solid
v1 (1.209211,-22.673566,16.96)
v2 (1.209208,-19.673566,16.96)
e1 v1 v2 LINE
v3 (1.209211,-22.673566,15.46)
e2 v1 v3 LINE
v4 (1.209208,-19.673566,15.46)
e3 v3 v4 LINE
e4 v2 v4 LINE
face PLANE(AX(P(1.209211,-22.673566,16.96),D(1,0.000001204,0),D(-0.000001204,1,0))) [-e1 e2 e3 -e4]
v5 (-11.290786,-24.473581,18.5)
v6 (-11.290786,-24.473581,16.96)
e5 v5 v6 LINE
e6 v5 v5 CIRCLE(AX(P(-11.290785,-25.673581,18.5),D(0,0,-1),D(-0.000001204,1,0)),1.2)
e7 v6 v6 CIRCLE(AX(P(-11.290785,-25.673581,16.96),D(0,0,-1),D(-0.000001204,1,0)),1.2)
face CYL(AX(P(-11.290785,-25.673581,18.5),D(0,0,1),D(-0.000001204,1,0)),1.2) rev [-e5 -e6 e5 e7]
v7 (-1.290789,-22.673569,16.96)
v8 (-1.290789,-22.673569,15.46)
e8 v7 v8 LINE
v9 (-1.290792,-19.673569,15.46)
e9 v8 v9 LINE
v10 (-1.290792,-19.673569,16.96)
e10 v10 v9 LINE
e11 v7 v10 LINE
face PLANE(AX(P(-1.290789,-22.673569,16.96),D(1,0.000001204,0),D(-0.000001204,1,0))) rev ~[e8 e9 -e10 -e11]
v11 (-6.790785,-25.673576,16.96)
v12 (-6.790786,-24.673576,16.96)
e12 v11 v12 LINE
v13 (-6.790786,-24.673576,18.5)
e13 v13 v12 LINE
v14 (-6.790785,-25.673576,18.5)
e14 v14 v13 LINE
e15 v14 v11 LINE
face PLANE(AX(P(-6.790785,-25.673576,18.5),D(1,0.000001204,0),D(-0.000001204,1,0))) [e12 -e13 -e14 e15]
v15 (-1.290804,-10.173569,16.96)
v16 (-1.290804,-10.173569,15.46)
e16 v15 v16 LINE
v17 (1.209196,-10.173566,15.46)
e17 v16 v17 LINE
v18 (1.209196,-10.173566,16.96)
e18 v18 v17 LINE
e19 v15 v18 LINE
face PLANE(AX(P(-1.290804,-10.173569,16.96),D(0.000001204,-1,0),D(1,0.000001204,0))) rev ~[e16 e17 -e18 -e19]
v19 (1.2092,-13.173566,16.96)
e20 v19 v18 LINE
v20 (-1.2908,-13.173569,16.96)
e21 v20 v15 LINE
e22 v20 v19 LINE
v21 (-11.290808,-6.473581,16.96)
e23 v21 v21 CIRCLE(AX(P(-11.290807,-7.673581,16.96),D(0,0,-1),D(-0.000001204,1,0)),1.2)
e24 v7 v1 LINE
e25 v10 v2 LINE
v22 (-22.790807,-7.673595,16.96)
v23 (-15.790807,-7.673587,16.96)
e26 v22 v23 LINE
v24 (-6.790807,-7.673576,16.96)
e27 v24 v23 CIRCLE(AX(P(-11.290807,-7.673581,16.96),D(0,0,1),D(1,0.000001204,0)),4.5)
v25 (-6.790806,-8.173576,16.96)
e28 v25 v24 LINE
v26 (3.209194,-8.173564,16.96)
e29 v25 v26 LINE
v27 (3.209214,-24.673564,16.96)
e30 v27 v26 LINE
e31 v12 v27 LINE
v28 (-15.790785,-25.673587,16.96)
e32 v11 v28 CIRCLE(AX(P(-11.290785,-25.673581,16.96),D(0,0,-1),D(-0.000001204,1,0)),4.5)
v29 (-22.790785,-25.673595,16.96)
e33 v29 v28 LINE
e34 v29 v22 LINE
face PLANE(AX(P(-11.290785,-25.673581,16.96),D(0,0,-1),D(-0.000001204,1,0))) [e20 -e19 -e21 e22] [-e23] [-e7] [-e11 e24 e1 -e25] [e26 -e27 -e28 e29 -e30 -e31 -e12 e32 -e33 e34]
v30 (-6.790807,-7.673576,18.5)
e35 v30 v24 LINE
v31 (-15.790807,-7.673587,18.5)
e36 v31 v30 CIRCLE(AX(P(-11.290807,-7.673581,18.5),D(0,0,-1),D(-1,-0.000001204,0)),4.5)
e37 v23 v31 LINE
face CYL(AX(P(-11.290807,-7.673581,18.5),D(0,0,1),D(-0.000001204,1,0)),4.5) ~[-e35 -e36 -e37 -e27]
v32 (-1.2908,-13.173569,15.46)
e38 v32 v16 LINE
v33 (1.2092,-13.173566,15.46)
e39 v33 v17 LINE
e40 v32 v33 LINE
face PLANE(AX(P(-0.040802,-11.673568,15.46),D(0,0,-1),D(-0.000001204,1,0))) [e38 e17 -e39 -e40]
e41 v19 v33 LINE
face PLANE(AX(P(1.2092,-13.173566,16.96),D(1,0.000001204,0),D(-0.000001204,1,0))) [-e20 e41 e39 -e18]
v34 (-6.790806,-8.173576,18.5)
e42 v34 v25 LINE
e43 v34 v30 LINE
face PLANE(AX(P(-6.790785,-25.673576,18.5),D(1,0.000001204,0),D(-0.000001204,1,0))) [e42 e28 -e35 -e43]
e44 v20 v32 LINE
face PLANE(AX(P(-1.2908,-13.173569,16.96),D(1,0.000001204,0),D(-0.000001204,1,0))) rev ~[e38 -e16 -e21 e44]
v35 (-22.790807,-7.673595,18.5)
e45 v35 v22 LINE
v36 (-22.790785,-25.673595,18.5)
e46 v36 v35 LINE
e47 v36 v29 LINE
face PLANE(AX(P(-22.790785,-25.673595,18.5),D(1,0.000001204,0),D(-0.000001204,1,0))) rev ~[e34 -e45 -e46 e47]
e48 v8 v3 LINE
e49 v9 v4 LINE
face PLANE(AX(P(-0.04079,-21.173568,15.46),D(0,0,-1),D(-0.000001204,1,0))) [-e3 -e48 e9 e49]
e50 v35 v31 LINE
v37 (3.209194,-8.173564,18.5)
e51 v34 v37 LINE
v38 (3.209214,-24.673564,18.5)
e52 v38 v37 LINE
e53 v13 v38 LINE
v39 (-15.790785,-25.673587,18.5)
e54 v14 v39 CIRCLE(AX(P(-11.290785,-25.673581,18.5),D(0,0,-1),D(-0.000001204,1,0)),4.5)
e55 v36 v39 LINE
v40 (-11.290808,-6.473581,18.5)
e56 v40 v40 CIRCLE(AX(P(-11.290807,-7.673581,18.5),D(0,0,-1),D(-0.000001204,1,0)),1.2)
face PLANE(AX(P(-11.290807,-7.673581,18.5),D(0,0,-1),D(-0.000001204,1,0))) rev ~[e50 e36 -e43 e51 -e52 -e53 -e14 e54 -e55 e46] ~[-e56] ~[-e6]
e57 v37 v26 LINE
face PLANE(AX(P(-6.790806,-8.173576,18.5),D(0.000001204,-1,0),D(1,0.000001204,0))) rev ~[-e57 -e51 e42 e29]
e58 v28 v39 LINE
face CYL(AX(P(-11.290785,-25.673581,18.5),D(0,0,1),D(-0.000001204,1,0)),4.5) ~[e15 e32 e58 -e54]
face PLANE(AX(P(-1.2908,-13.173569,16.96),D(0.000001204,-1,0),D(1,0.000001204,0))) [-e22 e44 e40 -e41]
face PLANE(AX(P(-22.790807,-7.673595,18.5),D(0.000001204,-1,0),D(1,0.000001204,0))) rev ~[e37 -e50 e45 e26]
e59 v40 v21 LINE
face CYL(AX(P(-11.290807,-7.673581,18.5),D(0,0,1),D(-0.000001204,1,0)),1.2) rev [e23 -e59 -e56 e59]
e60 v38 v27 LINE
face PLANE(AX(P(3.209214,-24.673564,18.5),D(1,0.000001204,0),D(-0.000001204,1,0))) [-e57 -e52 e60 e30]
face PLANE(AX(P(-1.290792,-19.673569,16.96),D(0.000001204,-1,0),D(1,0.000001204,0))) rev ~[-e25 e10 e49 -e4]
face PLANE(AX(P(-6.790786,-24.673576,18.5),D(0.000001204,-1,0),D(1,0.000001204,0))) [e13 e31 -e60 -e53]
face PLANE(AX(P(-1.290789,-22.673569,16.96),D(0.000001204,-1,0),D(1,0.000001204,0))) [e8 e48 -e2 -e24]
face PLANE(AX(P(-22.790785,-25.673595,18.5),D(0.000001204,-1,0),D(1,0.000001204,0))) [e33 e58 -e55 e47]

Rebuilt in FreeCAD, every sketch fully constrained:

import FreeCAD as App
import Part
import Sketcher
from FreeCAD import Vector
Q = App.Units.Quantity

doc = App.newDocument("Part")
body = doc.addObject("PartDesign::Body", "Body")

# Sketch on XY plane
sketch1 = doc.addObject("Sketcher::SketchObject", "Sketch")
body.addObject(sketch1)
sketch1.AttachmentSupport = (doc.XY_Plane, [""])
sketch1.MapMode = "FlatFace"
sketch1.AttachmentOffset = App.Placement(Vector(0, 0, 1.54), App.Rotation())
sketch1.addGeometry(Part.LineSegment(Vector(12.5, 24, 0), Vector(12.5, 21.5, 0)), False)
sketch1.addGeometry(Part.LineSegment(Vector(12.5, 21.5, 0), Vector(15.5, 21.5, 0)), False)
sketch1.addGeometry(Part.LineSegment(Vector(15.5, 21.5, 0), Vector(15.5, 24, 0)), False)
sketch1.addGeometry(Part.LineSegment(Vector(15.5, 24, 0), Vector(12.5, 24, 0)), False)
sketch1.addConstraint(Sketcher.Constraint("Coincident", 0, 2, 1, 1))
sketch1.addConstraint(Sketcher.Constraint("Coincident", 1, 2, 2, 1))
sketch1.addConstraint(Sketcher.Constraint("Coincident", 2, 2, 3, 1))
sketch1.addConstraint(Sketcher.Constraint("Coincident", 3, 2, 0, 1))
sketch1.addConstraint(Sketcher.Constraint("Vertical", 0))
sketch1.addConstraint(Sketcher.Constraint("Horizontal", 1))
sketch1.addConstraint(Sketcher.Constraint("Vertical", 2))
sketch1.addConstraint(Sketcher.Constraint("Horizontal", 3))
sketch1.addConstraint(Sketcher.Constraint("DistanceX", 1, 1, 1, 2, Q("3 mm")))
sketch1.addConstraint(Sketcher.Constraint("DistanceY", 0, 2, 0, 1, Q("2.5 mm")))
sketch1.addConstraint(Sketcher.Constraint("DistanceY", -1, 1, 2, 2, Q("24 mm")))
sketch1.addConstraint(Sketcher.Constraint("DistanceX", -1, 1, 0, 2, Q("12.5 mm")))
pad1 = doc.addObject("PartDesign::Pad", "Pad")
body.addObject(pad1)
pad1.Profile = sketch1
pad1.Length = 1.5
body2 = doc.addObject("PartDesign::Body", "Body001")

# Sketch on XY plane
sketch2 = doc.addObject("Sketcher::SketchObject", "Sketch001")
body2.addObject(sketch2)
sketch2.AttachmentSupport = (doc.getObject("XY_Plane001"), [""])
sketch2.MapMode = "FlatFace"
sketch2.AttachmentOffset = App.Placement(Vector(0, 0, 1.54), App.Rotation())
sketch2.addGeometry(Part.LineSegment(Vector(3, 24, 0), Vector(3, 21.5, 0)), False)
sketch2.addGeometry(Part.LineSegment(Vector(3, 21.5, 0), Vector(6, 21.5, 0)), False)
sketch2.addGeometry(Part.LineSegment(Vector(6, 21.5, 0), Vector(6, 24, 0)), False)
sketch2.addGeometry(Part.LineSegment(Vector(6, 24, 0), Vector(3, 24, 0)), False)
sketch2.addConstraint(Sketcher.Constraint("Coincident", 0, 2, 1, 1))
sketch2.addConstraint(Sketcher.Constraint("Coincident", 1, 2, 2, 1))
sketch2.addConstraint(Sketcher.Constraint("Coincident", 2, 2, 3, 1))
sketch2.addConstraint(Sketcher.Constraint("Coincident", 3, 2, 0, 1))
sketch2.addConstraint(Sketcher.Constraint("Vertical", 0))
sketch2.addConstraint(Sketcher.Constraint("Horizontal", 1))
sketch2.addConstraint(Sketcher.Constraint("Vertical", 2))
sketch2.addConstraint(Sketcher.Constraint("Horizontal", 3))
sketch2.addConstraint(Sketcher.Constraint("DistanceX", 1, 1, 1, 2, Q("3 mm")))
sketch2.addConstraint(Sketcher.Constraint("DistanceY", 0, 2, 0, 1, Q("2.5 mm")))
sketch2.addConstraint(Sketcher.Constraint("DistanceX", -1, 1, 0, 2, Q("3 mm")))
sketch2.addConstraint(Sketcher.Constraint("DistanceY", -1, 1, 2, 2, Q("24 mm")))
pad2 = doc.addObject("PartDesign::Pad", "Pad001")
body2.addObject(pad2)
pad2.Profile = sketch2
pad2.Length = 1.5
body3 = doc.addObject("PartDesign::Body", "Body002")

# Sketch on XY plane
sketch3 = doc.addObject("Sketcher::SketchObject", "Sketch002")
body3.addObject(sketch3)
sketch3.AttachmentSupport = (doc.getObject("XY_Plane002"), [""])
sketch3.MapMode = "FlatFace"
sketch3.addGeometry(Part.Circle(Vector(0, 11.5, 0), Vector(0, 0, 1), 1.2), False)
sketch3.addConstraint(Sketcher.Constraint("PointOnObject", 0, 3, -2))
sketch3.addConstraint(Sketcher.Constraint("Diameter", 0, Q("2.4 mm")))
sketch3.addConstraint(Sketcher.Constraint("DistanceY", -1, 1, 0, 3, Q("11.5 mm")))
pad3 = doc.addObject("PartDesign::Pad", "Pad002")
body3.addObject(pad3)
pad3.Profile = sketch3
pad3.Length = 1.54
body4 = doc.addObject("PartDesign::Body", "Body003")

# Sketch on XY plane
sketch4 = doc.addObject("Sketcher::SketchObject", "Sketch003")
body4.addObject(sketch4)
sketch4.AttachmentSupport = (doc.getObject("XY_Plane003"), [""])
sketch4.MapMode = "FlatFace"
sketch4.addGeometry(Part.Circle(Vector(18, 11.5, 0), Vector(0, 0, 1), 1.2), False)
sketch4.addConstraint(Sketcher.Constraint("Diameter", 0, Q("2.4 mm")))
sketch4.addConstraint(Sketcher.Constraint("DistanceX", -1, 1, 0, 3, Q("18 mm")))
sketch4.addConstraint(Sketcher.Constraint("DistanceY", -1, 1, 0, 3, Q("11.5 mm")))
pad4 = doc.addObject("PartDesign::Pad", "Pad003")
body4.addObject(pad4)
pad4.Profile = sketch4
pad4.Length = 1.54
body5 = doc.addObject("PartDesign::Body", "Body004")

# Sketch on XY plane
sketch5 = doc.addObject("Sketcher::SketchObject", "Sketch004")
body5.addObject(sketch5)
sketch5.AttachmentSupport = (doc.getObject("XY_Plane004"), [""])
sketch5.MapMode = "FlatFace"
sketch5.addGeometry(Part.Circle(Vector(0, 11.5, 0), Vector(0, 0, 1), 4.5), False)
sketch5.addConstraint(Sketcher.Constraint("PointOnObject", 0, 3, -2))
sketch5.addConstraint(Sketcher.Constraint("Diameter", 0, Q("9 mm")))
sketch5.addConstraint(Sketcher.Constraint("DistanceY", -1, 1, 0, 3, Q("11.5 mm")))
pad5 = doc.addObject("PartDesign::Pad", "Pad004")
body5.addObject(pad5)
pad5.Profile = sketch5
pad5.Length = 1.54
body6 = doc.addObject("PartDesign::Body", "Body005")

# Sketch on XY plane
sketch6 = doc.addObject("Sketcher::SketchObject", "Sketch005")
body6.addObject(sketch6)
sketch6.AttachmentSupport = (doc.getObject("XY_Plane005"), [""])
sketch6.MapMode = "FlatFace"
sketch6.addGeometry(Part.Circle(Vector(18, 11.5, 0), Vector(0, 0, 1), 4.5), False)
sketch6.addConstraint(Sketcher.Constraint("Diameter", 0, Q("9 mm")))
sketch6.addConstraint(Sketcher.Constraint("DistanceX", -1, 1, 0, 3, Q("18 mm")))
sketch6.addConstraint(Sketcher.Constraint("DistanceY", -1, 1, 0, 3, Q("11.5 mm")))
pad6 = doc.addObject("PartDesign::Pad", "Pad005")
body6.addObject(pad6)
pad6.Profile = sketch6
pad6.Length = 1.54
body7 = doc.addObject("PartDesign::Body", "Body006")

# Sketch on XY plane
sketch7 = doc.addObject("Sketcher::SketchObject", "Sketch006")
body7.addObject(sketch7)
sketch7.AttachmentSupport = (doc.getObject("XY_Plane006"), [""])
sketch7.MapMode = "FlatFace"
sketch7.addGeometry(Part.LineSegment(Vector(0, 16, 0), Vector(0, 0, 0)), False)
sketch7.addGeometry(Part.LineSegment(Vector(0, 0, 0), Vector(18, 0, 0)), False)
sketch7.addGeometry(Part.LineSegment(Vector(18, 0, 0), Vector(18, 16, 0)), False)
sketch7.addGeometry(Part.LineSegment(Vector(18, 16, 0), Vector(0, 16, 0)), False)
sketch7.addConstraint(Sketcher.Constraint("Coincident", 0, 2, 1, 1))
sketch7.addConstraint(Sketcher.Constraint("Coincident", 1, 2, 2, 1))
sketch7.addConstraint(Sketcher.Constraint("Coincident", 2, 2, 3, 1))
sketch7.addConstraint(Sketcher.Constraint("Coincident", 3, 2, 0, 1))
sketch7.addConstraint(Sketcher.Constraint("Vertical", 0))
sketch7.addConstraint(Sketcher.Constraint("Horizontal", 1))
sketch7.addConstraint(Sketcher.Constraint("Vertical", 2))
sketch7.addConstraint(Sketcher.Constraint("Horizontal", 3))
sketch7.addConstraint(Sketcher.Constraint("Coincident", 0, 2, -1, 1))
sketch7.addConstraint(Sketcher.Constraint("DistanceX", 1, 1, 1, 2, Q("18 mm")))
sketch7.addConstraint(Sketcher.Constraint("DistanceY", 0, 2, 0, 1, Q("16 mm")))
pad7 = doc.addObject("PartDesign::Pad", "Pad006")
body7.addObject(pad7)
pad7.Profile = sketch7
pad7.Length = 1.54
body8 = doc.addObject("PartDesign::Body", "Body007")

# Sketch on XY plane
sketch8 = doc.addObject("Sketcher::SketchObject", "Sketch007")
body8.addObject(sketch8)
sketch8.AttachmentSupport = (doc.getObject("XY_Plane007"), [""])
sketch8.MapMode = "FlatFace"
sketch8.addGeometry(Part.LineSegment(Vector(1, 26, 0), Vector(1, 16, 0)), False)
sketch8.addGeometry(Part.LineSegment(Vector(1, 16, 0), Vector(18, 16, 0)), False)
sketch8.addGeometry(Part.LineSegment(Vector(18, 16, 0), Vector(18, 26, 0)), False)
sketch8.addGeometry(Part.LineSegment(Vector(18, 26, 0), Vector(1, 26, 0)), False)
sketch8.addConstraint(Sketcher.Constraint("Coincident", 0, 2, 1, 1))
sketch8.addConstraint(Sketcher.Constraint("Coincident", 1, 2, 2, 1))
sketch8.addConstraint(Sketcher.Constraint("Coincident", 2, 2, 3, 1))
sketch8.addConstraint(Sketcher.Constraint("Coincident", 3, 2, 0, 1))
sketch8.addConstraint(Sketcher.Constraint("Vertical", 0))
sketch8.addConstraint(Sketcher.Constraint("Horizontal", 1))
sketch8.addConstraint(Sketcher.Constraint("Vertical", 2))
sketch8.addConstraint(Sketcher.Constraint("Horizontal", 3))
sketch8.addConstraint(Sketcher.Constraint("DistanceY", 0, 2, 0, 1, Q("10 mm")))
sketch8.addConstraint(Sketcher.Constraint("DistanceX", 1, 1, 1, 2, Q("16.5 mm")))
sketch8.addConstraint(Sketcher.Constraint("DistanceX", -1, 1, 0, 2, Q("1 mm")))
sketch8.addConstraint(Sketcher.Constraint("DistanceY", -1, 1, 0, 2, Q("16 mm")))
pad8 = doc.addObject("PartDesign::Pad", "Pad007")
body8.addObject(pad8)
pad8.Profile = sketch8
pad8.Length = 1.54
doc.recompute()

boolean = doc.addObject("PartDesign::Boolean", "Boolean")
body8.addObject(boolean)
boolean.Type = "Fuse"
boolean.addObjects([body7])
doc.recompute()

boolean2 = doc.addObject("PartDesign::Boolean", "Boolean001")
body8.addObject(boolean2)
boolean2.Type = "Fuse"
boolean2.addObjects([body6])
doc.recompute()

boolean3 = doc.addObject("PartDesign::Boolean", "Boolean002")
body8.addObject(boolean3)
boolean3.Type = "Fuse"
boolean3.addObjects([body5])
doc.recompute()

boolean4 = doc.addObject("PartDesign::Boolean", "Boolean003")
body8.addObject(boolean4)
boolean4.Type = "Cut"
boolean4.addObjects([body4])
doc.recompute()

boolean5 = doc.addObject("PartDesign::Boolean", "Boolean004")
body8.addObject(boolean5)
boolean5.Type = "Cut"
boolean5.addObjects([body3])
doc.recompute()

boolean6 = doc.addObject("PartDesign::Boolean", "Boolean005")
body8.addObject(boolean6)
boolean6.Type = "Fuse"
boolean6.addObjects([body])
doc.recompute()

boolean7 = doc.addObject("PartDesign::Boolean", "Boolean006")
body8.addObject(boolean7)
boolean7.Type = "Fuse"
boolean7.addObjects([body2])
body9 = doc.addObject("PartDesign::Body", "Body008")
doc.recompute()

body8.Placement = App.Placement(Vector(0, 0, 0), App.Rotation(Vector(1, 0, 0), 180))
boolean8 = doc.addObject("PartDesign::Boolean", "Boolean007")
body9.addObject(boolean8)
boolean8.Type = "Fuse"
boolean8.addObjects([body8])
body10 = doc.addObject("PartDesign::Body", "Body009")
doc.recompute()

body9.Placement = App.Placement(Vector(-22.790785, -25.673595, 18.5), App.Rotation(Vector(0, 0, 1), 90.000069))
boolean9 = doc.addObject("PartDesign::Boolean", "Boolean008")
body10.addObject(boolean9)
boolean9.Type = "Fuse"
boolean9.addObjects([body9])

doc.recompute()
